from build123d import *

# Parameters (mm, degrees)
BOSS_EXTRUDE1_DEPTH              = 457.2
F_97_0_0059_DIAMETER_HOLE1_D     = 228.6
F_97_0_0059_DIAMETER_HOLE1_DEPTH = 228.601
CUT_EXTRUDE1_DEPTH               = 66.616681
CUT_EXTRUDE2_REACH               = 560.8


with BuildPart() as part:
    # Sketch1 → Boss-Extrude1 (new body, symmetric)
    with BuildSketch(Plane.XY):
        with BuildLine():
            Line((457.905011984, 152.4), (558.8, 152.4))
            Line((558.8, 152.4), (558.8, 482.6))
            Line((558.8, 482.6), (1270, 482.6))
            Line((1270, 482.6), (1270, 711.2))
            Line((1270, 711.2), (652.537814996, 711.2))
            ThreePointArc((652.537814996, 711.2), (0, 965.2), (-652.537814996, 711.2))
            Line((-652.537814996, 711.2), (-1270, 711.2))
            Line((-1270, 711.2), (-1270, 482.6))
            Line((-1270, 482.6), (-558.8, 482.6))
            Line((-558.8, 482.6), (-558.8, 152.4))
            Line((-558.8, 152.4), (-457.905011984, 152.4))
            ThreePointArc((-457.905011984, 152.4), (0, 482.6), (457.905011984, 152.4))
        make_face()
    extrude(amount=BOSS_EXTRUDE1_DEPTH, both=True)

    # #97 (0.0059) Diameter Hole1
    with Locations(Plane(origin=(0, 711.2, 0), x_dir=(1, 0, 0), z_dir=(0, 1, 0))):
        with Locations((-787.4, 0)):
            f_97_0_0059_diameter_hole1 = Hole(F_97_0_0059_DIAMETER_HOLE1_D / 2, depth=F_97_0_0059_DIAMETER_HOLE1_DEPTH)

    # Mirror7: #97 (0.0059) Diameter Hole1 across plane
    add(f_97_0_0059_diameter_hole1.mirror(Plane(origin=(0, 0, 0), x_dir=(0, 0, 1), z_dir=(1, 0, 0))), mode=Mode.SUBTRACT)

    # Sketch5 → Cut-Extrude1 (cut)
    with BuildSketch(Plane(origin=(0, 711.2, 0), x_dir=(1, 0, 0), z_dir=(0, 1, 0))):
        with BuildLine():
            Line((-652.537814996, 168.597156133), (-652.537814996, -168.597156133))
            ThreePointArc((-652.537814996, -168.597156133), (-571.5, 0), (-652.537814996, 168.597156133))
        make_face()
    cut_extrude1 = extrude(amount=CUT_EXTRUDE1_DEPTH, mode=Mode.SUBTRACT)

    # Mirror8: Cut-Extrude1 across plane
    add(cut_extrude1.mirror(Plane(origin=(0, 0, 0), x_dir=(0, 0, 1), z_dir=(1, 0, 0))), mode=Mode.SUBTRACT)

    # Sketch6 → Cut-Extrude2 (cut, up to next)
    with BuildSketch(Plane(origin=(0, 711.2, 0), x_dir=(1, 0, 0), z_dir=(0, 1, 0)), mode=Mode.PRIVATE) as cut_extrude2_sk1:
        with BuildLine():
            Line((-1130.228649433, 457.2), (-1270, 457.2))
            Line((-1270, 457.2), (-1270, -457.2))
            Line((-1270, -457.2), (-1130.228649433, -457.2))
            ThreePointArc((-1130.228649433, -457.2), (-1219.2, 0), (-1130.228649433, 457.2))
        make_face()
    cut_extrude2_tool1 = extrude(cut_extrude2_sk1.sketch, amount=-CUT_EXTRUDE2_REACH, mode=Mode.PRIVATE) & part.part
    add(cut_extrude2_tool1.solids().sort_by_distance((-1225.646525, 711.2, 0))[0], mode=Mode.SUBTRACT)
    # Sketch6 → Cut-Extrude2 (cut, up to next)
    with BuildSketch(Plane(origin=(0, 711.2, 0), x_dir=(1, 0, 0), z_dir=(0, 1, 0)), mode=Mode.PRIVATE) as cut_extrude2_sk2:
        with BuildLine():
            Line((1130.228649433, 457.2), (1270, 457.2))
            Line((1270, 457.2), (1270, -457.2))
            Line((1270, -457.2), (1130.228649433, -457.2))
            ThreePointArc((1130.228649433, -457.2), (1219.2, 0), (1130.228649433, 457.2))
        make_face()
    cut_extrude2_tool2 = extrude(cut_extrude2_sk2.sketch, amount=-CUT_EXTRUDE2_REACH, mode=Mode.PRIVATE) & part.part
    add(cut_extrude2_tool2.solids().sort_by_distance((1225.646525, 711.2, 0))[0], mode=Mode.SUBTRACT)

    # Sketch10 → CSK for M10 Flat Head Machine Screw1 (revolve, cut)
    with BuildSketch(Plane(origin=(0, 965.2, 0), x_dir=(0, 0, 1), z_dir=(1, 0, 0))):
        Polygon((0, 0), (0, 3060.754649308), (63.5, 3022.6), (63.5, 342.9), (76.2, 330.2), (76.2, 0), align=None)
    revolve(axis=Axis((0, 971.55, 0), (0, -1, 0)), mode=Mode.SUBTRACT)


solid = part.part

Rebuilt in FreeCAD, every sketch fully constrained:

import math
import FreeCAD as App
import Part
import Sketcher
from FreeCAD import Vector
Q = App.Units.Quantity


def add_polygon(sketch, points):
    """Adds a closed chain of lines whose ends are joined by coincident constraints."""
    first, n = sketch.GeometryCount, len(points)
    for a, b in zip(points, points[1:] + points[:1]):
        sketch.addGeometry(Part.LineSegment(App.Vector(*a, 0), App.Vector(*b, 0)), False)
    for i in range(n):
        sketch.addConstraint(Sketcher.Constraint("Coincident", first + i, 2, first + (i + 1) % n, 1))

doc = App.newDocument("Part")
body = doc.addObject("PartDesign::Body", "Body")

sketch1 = body.newObject("Sketcher::SketchObject", "Sketch")
sketch1.AttachmentSupport = (doc.getObject("XY_Plane"), [""])
sketch1.MapMode = "FlatFace"
sketch1.addGeometry([
    Part.LineSegment(Vector(457.905012, 152.4, 0), Vector(558.8, 152.4, 0)),
    Part.LineSegment(Vector(558.8, 152.4, 0), Vector(558.8, 482.6, 0)),
    Part.LineSegment(Vector(558.8, 482.6, 0), Vector(1270, 482.6, 0)),
    Part.LineSegment(Vector(1270, 482.6, 0), Vector(1270, 711.2, 0)),
    Part.LineSegment(Vector(1270, 711.2, 0), Vector(652.537815, 711.2, 0)),
    Part.ArcOfCircle(Part.Circle(Vector(0, 0, 0), Vector(0, 0, 1), 965.2), math.radians(47.463102), math.radians(132.536898)),
    Part.LineSegment(Vector(-652.537815, 711.2, 0), Vector(-1270, 711.2, 0)),
    Part.LineSegment(Vector(-1270, 711.2, 0), Vector(-1270, 482.6, 0)),
    Part.LineSegment(Vector(-1270, 482.6, 0), Vector(-558.8, 482.6, 0)),
    Part.LineSegment(Vector(-558.8, 482.6, 0), Vector(-558.8, 152.4, 0)),
    Part.LineSegment(Vector(-558.8, 152.4, 0), Vector(-457.905012, 152.4, 0)),
    Part.ArcOfCircle(Part.Circle(Vector(0, 0, 0), Vector(0, 0, 1), 482.6), math.radians(18.40848), math.radians(161.59152)),
], False)
sketch1.addConstraint([
    Sketcher.Constraint("Coincident", 0, 2, 1, 1),
    Sketcher.Constraint("Coincident", 1, 2, 2, 1),
    Sketcher.Constraint("Coincident", 2, 2, 3, 1),
    Sketcher.Constraint("Coincident", 3, 2, 4, 1),
    Sketcher.Constraint("Coincident", 4, 2, 5, 1),
    Sketcher.Constraint("Coincident", 5, 2, 6, 1),
    Sketcher.Constraint("Coincident", 6, 2, 7, 1),
    Sketcher.Constraint("Coincident", 7, 2, 8, 1),
    Sketcher.Constraint("Coincident", 8, 2, 9, 1),
    Sketcher.Constraint("Coincident", 9, 2, 10, 1),
    Sketcher.Constraint("Coincident", 10, 2, 11, 2),
    Sketcher.Constraint("Coincident", 11, 1, 0, 1),
    Sketcher.Constraint("Horizontal", 0),
    Sketcher.Constraint("Vertical", 1),
    Sketcher.Constraint("Horizontal", 2),
    Sketcher.Constraint("Vertical", 3),
    Sketcher.Constraint("Horizontal", 4),
    Sketcher.Constraint("Horizontal", 6),
    Sketcher.Constraint("Vertical", 7),
    Sketcher.Constraint("Horizontal", 8),
    Sketcher.Constraint("Vertical", 9),
    Sketcher.Constraint("Horizontal", 10),
    Sketcher.Constraint("Coincident", 5, 3, -1, 1),
    Sketcher.Constraint("Coincident", 11, 3, -1, 1),
    Sketcher.Constraint("Symmetric", 3, 2, 6, 2, -2),
    Sketcher.Constraint("Symmetric", 1, 2, 8, 2, -2),
    Sketcher.Constraint("Horizontal", 0, 2, 9, 2),
    Sketcher.Constraint("Radius", 5, Q("38 in")),
    Sketcher.Constraint("Radius", 11, Q("19 in")),
    Sketcher.Constraint("DistanceX", 2, 1, 2, 2, Q("28 in")),
    Sketcher.Constraint("DistanceY", 1, 1, 1, 2, Q("13 in")),
    Sketcher.Constraint("DistanceY", 3, 1, 3, 2, Q("9 in")),
    Sketcher.Constraint("DistanceX", -1, 1, 0, 2, Q("22 in")),
    Sketcher.Constraint("DistanceY", -1, 1, 0, 2, Q("6 in")),
])
pad1 = body.newObject("PartDesign::Pad", "Pad")
pad1.Profile = sketch1
pad1.Length = Q("36 in")
pad1.Midplane = True

sketch2 = body.newObject("Sketcher::SketchObject", "Sketch001")
sketch2.AttachmentSupport = (doc.getObject("XZ_Plane"), [""])
sketch2.MapMode = "FlatFace"
sketch2.AttachmentOffset = App.Placement(Vector(0, 0, -28 * 25.4), App.Rotation())
sketch2.addGeometry(Part.Circle(Vector(-787.4, 0, 0), Vector(0, 0, 1), 114.3), False)
sketch2.addConstraint([
    Sketcher.Constraint("PointOnObject", 0, 3, -1),
    Sketcher.Constraint("Diameter", 0, Q("9 in")),
    Sketcher.Constraint("DistanceX", 0, 3, -1, 1, Q("31 in")),
])
doc.recompute()
hole = body.newObject("PartDesign::Hole", "Hole")
hole.Profile = sketch2
hole.ThreadType = "None"
hole.Diameter = Q("9 in")
hole.DepthType = "Dimension"
hole.Depth = 228.601
hole.DrillPoint = "Flat"
hole.Reversed = True
doc.recompute()

mirrored = body.newObject("PartDesign::Mirrored", "Mirrored")
mirrored.Originals = [hole]
mirrored.MirrorPlane = (doc.getObject("YZ_Plane"), [""])
body.Tip = mirrored

sketch3 = body.newObject("Sketcher::SketchObject", "Sketch002")
sketch3.AttachmentSupport = (doc.getObject("XZ_Plane"), [""])
sketch3.MapMode = "FlatFace"
sketch3.AttachmentOffset = App.Placement(Vector(0, 0, -28 * 25.4), App.Rotation())
sketch3.addGeometry([
    Part.LineSegment(Vector(-652.537815, -168.597156, 0), Vector(-652.537815, 168.597156, 0)),
    Part.ArcOfCircle(Part.Circle(Vector(-787.4, 0, 0), Vector(0, 0, 1), 215.9), math.radians(-51.343412), math.radians(51.343412)),
], False)
sketch3.addConstraint([
    Sketcher.Constraint("Coincident", 0, 1, 1, 1),
    Sketcher.Constraint("Coincident", 1, 2, 0, 2),
    Sketcher.Constraint("Vertical", 0),
    Sketcher.Constraint("PointOnObject", 1, 3, -1),
    Sketcher.Constraint("Radius", 1, Q("8.5 in")),
    Sketcher.Constraint("DistanceX", 1, 3, -1, 1, Q("31 in")),
    Sketcher.Constraint("DistanceY", 0, 1, 0, 2, Q("337.194312 mm")),
])
pocket1 = body.newObject("PartDesign::Pocket", "Pocket")
pocket1.Profile = sketch3
pocket1.Length = 66.616681
doc.recompute()

mirrored2 = body.newObject("PartDesign::Mirrored", "Mirrored001")
mirrored2.Originals = [pocket1]
mirrored2.MirrorPlane = (doc.getObject("YZ_Plane"), [""])
body.Tip = mirrored2

sketch4 = body.newObject("Sketcher::SketchObject", "Sketch003")
sketch4.AttachmentSupport = (doc.getObject("XZ_Plane"), [""])
sketch4.MapMode = "FlatFace"
sketch4.AttachmentOffset = App.Placement(Vector(0, 0, -28 * 25.4), App.Rotation())
sketch4.addGeometry([
    Part.LineSegment(Vector(-1130.228649, -457.2, 0), Vector(-1270, -457.2, 0)),
    Part.LineSegment(Vector(-1270, -457.2, 0), Vector(-1270, 457.2, 0)),
    Part.LineSegment(Vector(-1270, 457.2, 0), Vector(-1130.228649, 457.2, 0)),
    Part.ArcOfCircle(Part.Circle(Vector(0, 0, 0), Vector(0, 0, 1), 1219.2), math.radians(157.975687), math.radians(202.024313)),
], False)
sketch4.addConstraint([
    Sketcher.Constraint("Coincident", 0, 2, 1, 1),
    Sketcher.Constraint("Coincident", 1, 2, 2, 1),
    Sketcher.Constraint("Coincident", 2, 2, 3, 1),
    Sketcher.Constraint("Coincident", 3, 2, 0, 1),
    Sketcher.Constraint("Horizontal", 0),
    Sketcher.Constraint("Vertical", 1),
    Sketcher.Constraint("Horizontal", 2),
    Sketcher.Constraint("Coincident", 3, 3, -1, 1),
    Sketcher.Constraint("Equal", 0, 2),
    Sketcher.Constraint("Radius", 3, Q("48 in")),
    Sketcher.Constraint("DistanceY", 1, 1, 1, 2, Q("36 in")),
    Sketcher.Constraint("DistanceX", 0, 2, -1, 1, Q("50 in")),
])
pocket2 = body.newObject("PartDesign::Pocket", "Pocket001")
pocket2.Profile = sketch4
pocket2.Type = "UpToFirst"
pocket2.Reversed = True

sketch5 = body.newObject("Sketcher::SketchObject", "Sketch004")
sketch5.AttachmentSupport = (doc.getObject("XZ_Plane"), [""])
sketch5.MapMode = "FlatFace"
sketch5.AttachmentOffset = App.Placement(Vector(0, 0, -28 * 25.4), App.Rotation())
sketch5.addGeometry([
    Part.LineSegment(Vector(1270, -457.2, 0), Vector(1130.228649, -457.2, 0)),
    Part.ArcOfCircle(Part.Circle(Vector(0, 0, 0), Vector(0, 0, 1), 1219.2), math.radians(-22.024313), math.radians(22.024313)),
    Part.LineSegment(Vector(1130.228649, 457.2, 0), Vector(1270, 457.2, 0)),
    Part.LineSegment(Vector(1270, 457.2, 0), Vector(1270, -457.2, 0)),
], False)
sketch5.addConstraint([
    Sketcher.Constraint("Coincident", 0, 2, 1, 1),
    Sketcher.Constraint("Coincident", 1, 2, 2, 1),
    Sketcher.Constraint("Coincident", 2, 2, 3, 1),
    Sketcher.Constraint("Coincident", 3, 2, 0, 1),
    Sketcher.Constraint("Horizontal", 0),
    Sketcher.Constraint("Horizontal", 2),
    Sketcher.Constraint("Vertical", 3),
    Sketcher.Constraint("Coincident", 1, 3, -1, 1),
    Sketcher.Constraint("Equal", 0, 2),
    Sketcher.Constraint("Radius", 1, Q("48 in")),
    Sketcher.Constraint("DistanceY", 3, 2, 3, 1, Q("36 in")),
    Sketcher.Constraint("DistanceX", -1, 1, 2, 2, Q("50 in")),
])
pocket3 = body.newObject("PartDesign::Pocket", "Pocket002")
pocket3.Profile = sketch5
pocket3.Type = "UpToFirst"
pocket3.Reversed = True

sketch6 = body.newObject("Sketcher::SketchObject", "Sketch005")
sketch6.AttachmentSupport = (doc.getObject("YZ_Plane"), [""])
sketch6.MapMode = "FlatFace"
add_polygon(sketch6, [(-2095.554649, 0), (965.2, 0), (965.2, 76.2), (635, 76.2), (622.3, 63.5), (-2057.4, 63.5)])
sketch6.addConstraint([
    Sketcher.Constraint("Horizontal", 0),
    Sketcher.Constraint("Vertical", 1),
    Sketcher.Constraint("Horizontal", 2),
    Sketcher.Constraint("Horizontal", 4),
    Sketcher.Constraint("PointOnObject", 0, 2, -1),
    Sketcher.Constraint("DistanceX", 2, 2, 2, 1, Q("13 in")),
    Sketcher.Constraint("DistanceY", 1, 1, 1, 2, Q("3 in")),
    Sketcher.Constraint("DistanceX", 4, 2, 4, 1, Q("105.5 in")),
    Sketcher.Constraint("DistanceX", -1, 1, 0, 2, Q("38 in")),
    Sketcher.Constraint("DistanceX", 4, 2, -1, 1, Q("81 in")),
    Sketcher.Constraint("Angle", 3, Q("-135 deg")),
    Sketcher.Constraint("Angle", 5, Q("-121 deg")),
])
groove = body.newObject("PartDesign::Groove", "Groove")
groove.Profile = sketch6
groove.ReferenceAxis = (sketch6, ["H_Axis"])
groove.Angle = 360

doc.recompute()
